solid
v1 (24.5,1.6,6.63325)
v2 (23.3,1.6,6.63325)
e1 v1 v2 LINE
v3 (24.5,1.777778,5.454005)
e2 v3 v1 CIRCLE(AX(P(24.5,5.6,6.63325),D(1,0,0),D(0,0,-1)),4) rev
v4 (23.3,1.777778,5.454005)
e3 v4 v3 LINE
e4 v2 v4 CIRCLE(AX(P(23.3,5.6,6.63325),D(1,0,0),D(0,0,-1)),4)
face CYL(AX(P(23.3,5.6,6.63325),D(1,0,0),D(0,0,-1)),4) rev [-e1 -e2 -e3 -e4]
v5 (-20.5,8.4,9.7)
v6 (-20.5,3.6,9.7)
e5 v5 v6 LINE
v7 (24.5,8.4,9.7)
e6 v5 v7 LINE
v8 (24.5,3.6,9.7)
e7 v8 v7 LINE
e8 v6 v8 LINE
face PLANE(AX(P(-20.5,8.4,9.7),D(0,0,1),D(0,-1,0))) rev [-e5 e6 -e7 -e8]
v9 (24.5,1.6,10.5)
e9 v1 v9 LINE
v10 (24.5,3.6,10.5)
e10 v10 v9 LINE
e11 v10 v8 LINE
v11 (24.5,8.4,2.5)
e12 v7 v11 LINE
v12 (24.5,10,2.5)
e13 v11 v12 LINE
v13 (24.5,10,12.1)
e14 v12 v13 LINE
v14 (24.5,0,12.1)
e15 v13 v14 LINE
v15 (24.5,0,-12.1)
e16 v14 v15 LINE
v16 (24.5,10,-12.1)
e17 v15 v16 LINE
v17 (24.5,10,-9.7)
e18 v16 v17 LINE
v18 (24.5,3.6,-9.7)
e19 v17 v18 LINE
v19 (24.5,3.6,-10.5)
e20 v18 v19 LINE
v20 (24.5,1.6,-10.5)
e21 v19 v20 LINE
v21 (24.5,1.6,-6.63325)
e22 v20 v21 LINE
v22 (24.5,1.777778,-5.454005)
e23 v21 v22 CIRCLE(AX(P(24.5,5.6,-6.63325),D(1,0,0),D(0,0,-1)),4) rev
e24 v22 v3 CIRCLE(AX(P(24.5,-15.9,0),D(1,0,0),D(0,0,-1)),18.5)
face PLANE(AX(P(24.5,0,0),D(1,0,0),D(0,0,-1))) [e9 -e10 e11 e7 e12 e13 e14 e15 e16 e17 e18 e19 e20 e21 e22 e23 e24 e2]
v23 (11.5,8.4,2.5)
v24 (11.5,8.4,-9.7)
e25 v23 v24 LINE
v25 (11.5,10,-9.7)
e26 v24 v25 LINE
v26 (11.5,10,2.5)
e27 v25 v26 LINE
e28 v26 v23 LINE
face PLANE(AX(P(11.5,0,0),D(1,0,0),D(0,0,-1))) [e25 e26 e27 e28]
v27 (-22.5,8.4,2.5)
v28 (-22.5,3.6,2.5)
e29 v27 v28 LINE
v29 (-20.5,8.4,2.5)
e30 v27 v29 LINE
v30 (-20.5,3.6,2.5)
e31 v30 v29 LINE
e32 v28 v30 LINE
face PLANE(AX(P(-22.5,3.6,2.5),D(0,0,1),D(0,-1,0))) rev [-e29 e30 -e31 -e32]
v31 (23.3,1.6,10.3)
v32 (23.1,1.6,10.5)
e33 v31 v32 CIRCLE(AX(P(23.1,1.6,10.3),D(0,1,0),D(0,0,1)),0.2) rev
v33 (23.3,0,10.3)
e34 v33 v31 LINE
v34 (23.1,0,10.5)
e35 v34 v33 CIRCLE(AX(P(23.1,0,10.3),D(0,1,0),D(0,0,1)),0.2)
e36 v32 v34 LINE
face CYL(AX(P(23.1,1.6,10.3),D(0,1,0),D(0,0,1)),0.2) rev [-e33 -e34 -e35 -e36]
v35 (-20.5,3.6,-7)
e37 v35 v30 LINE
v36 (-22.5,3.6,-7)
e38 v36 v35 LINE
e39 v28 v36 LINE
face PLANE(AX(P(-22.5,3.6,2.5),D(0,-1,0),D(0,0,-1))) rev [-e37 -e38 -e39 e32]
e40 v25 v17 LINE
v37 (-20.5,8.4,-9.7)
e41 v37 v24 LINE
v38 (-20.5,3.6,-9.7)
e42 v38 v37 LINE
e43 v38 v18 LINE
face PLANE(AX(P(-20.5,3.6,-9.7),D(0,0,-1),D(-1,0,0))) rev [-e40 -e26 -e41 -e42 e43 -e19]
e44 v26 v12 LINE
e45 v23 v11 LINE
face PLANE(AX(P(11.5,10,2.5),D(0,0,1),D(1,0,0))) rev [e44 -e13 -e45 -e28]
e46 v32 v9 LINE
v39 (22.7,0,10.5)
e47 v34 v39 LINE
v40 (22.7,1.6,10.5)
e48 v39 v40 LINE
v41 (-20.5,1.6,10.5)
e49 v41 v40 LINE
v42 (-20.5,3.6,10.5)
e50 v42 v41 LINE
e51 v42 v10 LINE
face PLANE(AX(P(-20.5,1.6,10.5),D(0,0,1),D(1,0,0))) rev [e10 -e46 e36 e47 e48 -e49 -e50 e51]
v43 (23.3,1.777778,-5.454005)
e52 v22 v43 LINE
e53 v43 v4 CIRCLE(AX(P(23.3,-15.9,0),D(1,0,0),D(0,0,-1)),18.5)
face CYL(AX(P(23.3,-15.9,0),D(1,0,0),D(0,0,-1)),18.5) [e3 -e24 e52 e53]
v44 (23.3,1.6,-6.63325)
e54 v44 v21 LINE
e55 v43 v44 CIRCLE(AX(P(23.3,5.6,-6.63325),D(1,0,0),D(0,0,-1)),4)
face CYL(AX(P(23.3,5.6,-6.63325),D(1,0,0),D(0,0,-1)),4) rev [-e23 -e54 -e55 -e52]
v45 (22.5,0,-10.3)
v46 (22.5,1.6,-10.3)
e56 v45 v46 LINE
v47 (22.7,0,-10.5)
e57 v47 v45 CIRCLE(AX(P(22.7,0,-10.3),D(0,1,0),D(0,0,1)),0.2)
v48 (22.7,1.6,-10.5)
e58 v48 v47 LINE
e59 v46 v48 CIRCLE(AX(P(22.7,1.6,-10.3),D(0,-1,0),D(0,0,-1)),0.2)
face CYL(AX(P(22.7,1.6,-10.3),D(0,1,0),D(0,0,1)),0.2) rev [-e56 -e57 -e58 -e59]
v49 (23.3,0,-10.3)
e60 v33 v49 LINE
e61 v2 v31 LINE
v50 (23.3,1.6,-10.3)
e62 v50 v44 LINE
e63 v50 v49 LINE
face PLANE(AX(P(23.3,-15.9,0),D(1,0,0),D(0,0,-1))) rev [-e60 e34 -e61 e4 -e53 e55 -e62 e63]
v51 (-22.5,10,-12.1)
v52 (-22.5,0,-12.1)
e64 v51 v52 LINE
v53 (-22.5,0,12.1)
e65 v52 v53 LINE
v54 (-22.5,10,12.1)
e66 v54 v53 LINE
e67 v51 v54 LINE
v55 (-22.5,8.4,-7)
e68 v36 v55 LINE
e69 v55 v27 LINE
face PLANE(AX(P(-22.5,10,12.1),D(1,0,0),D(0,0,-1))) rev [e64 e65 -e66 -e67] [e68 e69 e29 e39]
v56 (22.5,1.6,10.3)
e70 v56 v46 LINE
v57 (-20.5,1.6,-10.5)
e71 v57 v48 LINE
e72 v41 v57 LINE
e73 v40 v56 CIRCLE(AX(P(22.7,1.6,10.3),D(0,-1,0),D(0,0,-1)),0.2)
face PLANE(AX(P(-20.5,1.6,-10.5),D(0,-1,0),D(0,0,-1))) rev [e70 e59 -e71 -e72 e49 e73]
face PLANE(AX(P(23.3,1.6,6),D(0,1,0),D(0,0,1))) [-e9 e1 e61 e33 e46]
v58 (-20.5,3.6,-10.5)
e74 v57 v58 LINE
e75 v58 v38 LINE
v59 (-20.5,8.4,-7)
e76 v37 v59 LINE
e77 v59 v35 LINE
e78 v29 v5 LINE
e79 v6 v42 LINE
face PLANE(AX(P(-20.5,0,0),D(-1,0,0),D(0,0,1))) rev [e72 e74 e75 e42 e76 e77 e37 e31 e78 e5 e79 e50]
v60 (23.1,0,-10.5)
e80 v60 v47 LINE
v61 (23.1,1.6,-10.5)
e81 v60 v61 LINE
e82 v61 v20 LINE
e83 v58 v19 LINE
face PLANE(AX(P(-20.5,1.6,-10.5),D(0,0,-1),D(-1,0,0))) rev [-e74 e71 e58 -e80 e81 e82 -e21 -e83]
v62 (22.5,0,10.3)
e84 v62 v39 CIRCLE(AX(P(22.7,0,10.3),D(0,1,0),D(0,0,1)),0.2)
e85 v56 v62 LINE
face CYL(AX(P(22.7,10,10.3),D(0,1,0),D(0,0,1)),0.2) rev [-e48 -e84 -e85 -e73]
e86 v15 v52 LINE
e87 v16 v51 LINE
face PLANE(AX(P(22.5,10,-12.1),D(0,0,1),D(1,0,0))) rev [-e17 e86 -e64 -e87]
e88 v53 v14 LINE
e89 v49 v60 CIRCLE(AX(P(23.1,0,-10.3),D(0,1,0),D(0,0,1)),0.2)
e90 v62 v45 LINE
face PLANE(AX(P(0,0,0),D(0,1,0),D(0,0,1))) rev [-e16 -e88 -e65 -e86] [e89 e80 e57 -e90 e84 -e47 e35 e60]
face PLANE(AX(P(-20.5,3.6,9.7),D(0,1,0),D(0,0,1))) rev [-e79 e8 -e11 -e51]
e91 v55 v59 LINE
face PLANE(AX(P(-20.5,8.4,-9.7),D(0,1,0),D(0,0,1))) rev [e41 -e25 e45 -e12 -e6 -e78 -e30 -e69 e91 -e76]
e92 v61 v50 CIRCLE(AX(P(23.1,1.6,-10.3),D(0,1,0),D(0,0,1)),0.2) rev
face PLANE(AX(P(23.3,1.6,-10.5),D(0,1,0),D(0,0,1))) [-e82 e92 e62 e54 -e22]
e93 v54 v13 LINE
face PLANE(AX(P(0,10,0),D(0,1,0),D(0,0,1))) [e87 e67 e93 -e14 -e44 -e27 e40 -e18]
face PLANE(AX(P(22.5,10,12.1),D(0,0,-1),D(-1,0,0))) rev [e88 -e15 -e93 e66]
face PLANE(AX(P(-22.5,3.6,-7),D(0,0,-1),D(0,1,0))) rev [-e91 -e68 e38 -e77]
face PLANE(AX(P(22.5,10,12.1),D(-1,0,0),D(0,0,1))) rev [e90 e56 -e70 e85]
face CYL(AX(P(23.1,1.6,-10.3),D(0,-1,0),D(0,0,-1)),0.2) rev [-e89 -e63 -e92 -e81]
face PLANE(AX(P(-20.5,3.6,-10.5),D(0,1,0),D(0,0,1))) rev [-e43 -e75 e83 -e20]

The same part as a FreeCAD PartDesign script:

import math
import FreeCAD as App
import Part
import Sketcher
from FreeCAD import Vector


def edges_at(feature, points):
    """Names of the edges that pass closest to the given points."""
    edges = feature.Shape.Edges
    near = lambda p: min(range(len(edges)), key=lambda i: edges[i].distToShape(Part.Vertex(*p))[0])
    return sorted({f"Edge{near(p) + 1}" for p in points})

doc = App.newDocument("Part")
body = doc.addObject("PartDesign::Body", "Body")

# Sketch on XZ plane
sketch1 = body.newObject("Sketcher::SketchObject", "Sketch")
sketch1.AttachmentSupport = (doc.getObject("XZ_Plane"), [""])
sketch1.MapMode = "FlatFace"
sketch1.addGeometry(Part.LineSegment(Vector(-22, -12, 0), Vector(-22, 12, 0)), False)
sketch1.addGeometry(Part.LineSegment(Vector(-22, 12, 0), Vector(22, 12, 0)), False)
sketch1.addGeometry(Part.LineSegment(Vector(22, 12, 0), Vector(22, -12, 0)), False)
sketch1.addGeometry(Part.LineSegment(Vector(22, -12, 0), Vector(-22, -12, 0)), False)
sketch1.addConstraint(Sketcher.Constraint("Coincident", 0, 2, 1, 1))
sketch1.addConstraint(Sketcher.Constraint("Coincident", 1, 2, 2, 1))
sketch1.addConstraint(Sketcher.Constraint("Coincident", 2, 2, 3, 1))
sketch1.addConstraint(Sketcher.Constraint("Coincident", 3, 2, 0, 1))
sketch1.addConstraint(Sketcher.Constraint("Vertical", 0))
sketch1.addConstraint(Sketcher.Constraint("Horizontal", 1))
sketch1.addConstraint(Sketcher.Constraint("Vertical", 2))
sketch1.addConstraint(Sketcher.Constraint("Horizontal", 3))
sketch1.addConstraint(Sketcher.Constraint("Symmetric", 0, 2, 2, 2, -1, 1))
sketch1.addConstraint(Sketcher.Constraint("DistanceX", 1, 1, 1, 2, 45.0))
sketch1.addConstraint(Sketcher.Constraint("DistanceY", 0, 1, 0, 2, 24.2))
pad1 = body.newObject("PartDesign::Pad", "Pad")
pad1.Profile = sketch1
pad1.Length = 10
pad1.Reversed = True

# Sketch on YZ plane
sketch2 = body.newObject("Sketcher::SketchObject", "Sketch001")
sketch2.AttachmentSupport = (doc.getObject("YZ_Plane"), [""])
sketch2.MapMode = "FlatFace"
sketch2.AttachmentOffset = App.Placement(Vector(0, 0, 22.5), App.Rotation())
sketch2.addGeometry(Part.LineSegment(Vector(1.6, 10.5, 0), Vector(1.6, -10.5, 0)), False)
sketch2.addGeometry(Part.LineSegment(Vector(1.6, -10.5, 0), Vector(3.6, -10.5, 0)), False)
sketch2.addGeometry(Part.LineSegment(Vector(3.6, -10.5, 0), Vector(3.6, -9.7, 0)), False)
sketch2.addGeometry(Part.LineSegment(Vector(3.6, -9.7, 0), Vector(8.4, -9.7, 0)), False)
sketch2.addGeometry(Part.LineSegment(Vector(8.4, -9.7, 0), Vector(8.4, 9.7, 0)), False)
sketch2.addGeometry(Part.LineSegment(Vector(8.4, 9.7, 0), Vector(3.6, 9.7, 0)), False)
sketch2.addGeometry(Part.LineSegment(Vector(3.6, 9.7, 0), Vector(3.6, 10.5, 0)), False)
sketch2.addGeometry(Part.LineSegment(Vector(3.6, 10.5, 0), Vector(1.6, 10.5, 0)), False)
sketch2.addConstraint(Sketcher.Constraint("Coincident", 0, 2, 1, 1))
sketch2.addConstraint(Sketcher.Constraint("Coincident", 1, 2, 2, 1))
sketch2.addConstraint(Sketcher.Constraint("Coincident", 2, 2, 3, 1))
sketch2.addConstraint(Sketcher.Constraint("Coincident", 3, 2, 4, 1))
sketch2.addConstraint(Sketcher.Constraint("Coincident", 4, 2, 5, 1))
sketch2.addConstraint(Sketcher.Constraint("Coincident", 5, 2, 6, 1))
sketch2.addConstraint(Sketcher.Constraint("Coincident", 6, 2, 7, 1))
sketch2.addConstraint(Sketcher.Constraint("Coincident", 7, 2, 0, 1))
sketch2.addConstraint(Sketcher.Constraint("Vertical", 0))
sketch2.addConstraint(Sketcher.Constraint("Horizontal", 1))
sketch2.addConstraint(Sketcher.Constraint("Vertical", 2))
sketch2.addConstraint(Sketcher.Constraint("Horizontal", 3))
sketch2.addConstraint(Sketcher.Constraint("Vertical", 4))
sketch2.addConstraint(Sketcher.Constraint("Horizontal", 5))
sketch2.addConstraint(Sketcher.Constraint("Vertical", 6))
sketch2.addConstraint(Sketcher.Constraint("Horizontal", 7))
sketch2.addConstraint(Sketcher.Constraint("Symmetric", 2, 2, 5, 2, -1))
sketch2.addConstraint(Sketcher.Constraint("Equal", 2, 6))
sketch2.addConstraint(Sketcher.Constraint("DistanceX", 1, 1, 1, 2, 2.0))
sketch2.addConstraint(Sketcher.Constraint("DistanceY", 0, 2, 0, 1, 21.0))
sketch2.addConstraint(Sketcher.Constraint("DistanceX", 3, 1, 3, 2, 4.8))
sketch2.addConstraint(Sketcher.Constraint("DistanceY", 2, 1, 2, 2, 0.8))
sketch2.addConstraint(Sketcher.Constraint("DistanceX", -1, 1, 0, 2, 1.6))
pocket1 = body.newObject("PartDesign::Pocket", "Pocket")
pocket1.Profile = sketch2
pocket1.Length = 43

# Sketch on YZ plane
sketch3 = body.newObject("Sketcher::SketchObject", "Sketch002")
sketch3.AttachmentSupport = (doc.getObject("YZ_Plane"), [""])
sketch3.MapMode = "FlatFace"
sketch3.AttachmentOffset = App.Placement(Vector(0, 0, 22.5), App.Rotation())
sketch3.addGeometry(Part.LineSegment(Vector(8.4, 2.5, 0), Vector(3.6, 2.5, 0)), False)
sketch3.addGeometry(Part.LineSegment(Vector(3.6, 2.5, 0), Vector(3.6, -7, 0)), False)
sketch3.addGeometry(Part.LineSegment(Vector(3.6, -7, 0), Vector(8.4, -7, 0)), False)
sketch3.addGeometry(Part.LineSegment(Vector(8.4, -7, 0), Vector(8.4, 2.5, 0)), False)
sketch3.addConstraint(Sketcher.Constraint("Coincident", 0, 2, 1, 1))
sketch3.addConstraint(Sketcher.Constraint("Coincident", 1, 2, 2, 1))
sketch3.addConstraint(Sketcher.Constraint("Coincident", 2, 2, 3, 1))
sketch3.addConstraint(Sketcher.Constraint("Coincident", 3, 2, 0, 1))
sketch3.addConstraint(Sketcher.Constraint("Horizontal", 0))
sketch3.addConstraint(Sketcher.Constraint("Vertical", 1))
sketch3.addConstraint(Sketcher.Constraint("Horizontal", 2))
sketch3.addConstraint(Sketcher.Constraint("Vertical", 3))
sketch3.addConstraint(Sketcher.Constraint("DistanceX", 0, 2, 0, 1, 4.8))
sketch3.addConstraint(Sketcher.Constraint("DistanceY", 1, 2, 1, 1, 9.5))
sketch3.addConstraint(Sketcher.Constraint("DistanceY", 1, 2, -1, 1, 7.0))
sketch3.addConstraint(Sketcher.Constraint("DistanceX", -1, 1, 0, 2, 3.6))
pocket2 = body.newObject("PartDesign::Pocket", "Pocket001")
pocket2.Profile = sketch3
pocket2.Type = "ThroughAll"

# Sketch on YZ plane
sketch4 = body.newObject("Sketcher::SketchObject", "Sketch003")
sketch4.AttachmentSupport = (doc.getObject("YZ_Plane"), [""])
sketch4.MapMode = "FlatFace"
sketch4.AttachmentOffset = App.Placement(Vector(0, 0, 22.5), App.Rotation())
sketch4.addGeometry(Part.LineSegment(Vector(10, 2.5, 0), Vector(8.4, 2.5, 0)), False)
sketch4.addGeometry(Part.LineSegment(Vector(8.4, 2.5, 0), Vector(8.4, -9.7, 0)), False)
sketch4.addGeometry(Part.LineSegment(Vector(8.4, -9.7, 0), Vector(10, -9.7, 0)), False)
sketch4.addGeometry(Part.LineSegment(Vector(10, -9.7, 0), Vector(10, 2.5, 0)), False)
sketch4.addConstraint(Sketcher.Constraint("Coincident", 0, 2, 1, 1))
sketch4.addConstraint(Sketcher.Constraint("Coincident", 1, 2, 2, 1))
sketch4.addConstraint(Sketcher.Constraint("Coincident", 2, 2, 3, 1))
sketch4.addConstraint(Sketcher.Constraint("Coincident", 3, 2, 0, 1))
sketch4.addConstraint(Sketcher.Constraint("Horizontal", 0))
sketch4.addConstraint(Sketcher.Constraint("Vertical", 1))
sketch4.addConstraint(Sketcher.Constraint("Horizontal", 2))
sketch4.addConstraint(Sketcher.Constraint("Vertical", 3))
sketch4.addConstraint(Sketcher.Constraint("DistanceX", 0, 2, 0, 1, 1.6))
sketch4.addConstraint(Sketcher.Constraint("DistanceY", 1, 2, 1, 1, 12.2))
sketch4.addConstraint(Sketcher.Constraint("DistanceX", -1, 1, 2, 2, 10.0))
sketch4.addConstraint(Sketcher.Constraint("DistanceY", -1, 1, 0, 2, 2.5))
pocket3 = body.newObject("PartDesign::Pocket", "Pocket002")
pocket3.Profile = sketch4
pocket3.Length = 11

# Sketch on YZ plane
sketch5 = body.newObject("Sketcher::SketchObject", "Sketch004")
sketch5.AttachmentSupport = (doc.getObject("YZ_Plane"), [""])
sketch5.MapMode = "FlatFace"
sketch5.AttachmentOffset = App.Placement(Vector(0, 0, 22.5), App.Rotation())
sketch5.addGeometry(Part.LineSegment(Vector(10, 2.5, 0), Vector(10, 12.1, 0)), False)
sketch5.addGeometry(Part.LineSegment(Vector(10, 12.1, 0), Vector(0, 12.1, 0)), False)
sketch5.addGeometry(Part.LineSegment(Vector(0, 12.1, 0), Vector(0, 10.5, 0)), False)
sketch5.addGeometry(Part.LineSegment(Vector(0, 10.5, 0), Vector(3.6, 10.5, 0)), False)
sketch5.addGeometry(Part.LineSegment(Vector(3.6, 10.5, 0), Vector(3.6, 9.7, 0)), False)
sketch5.addGeometry(Part.LineSegment(Vector(3.6, 9.7, 0), Vector(8.4, 9.7, 0)), False)
sketch5.addGeometry(Part.LineSegment(Vector(8.4, 9.7, 0), Vector(8.4, 2.5, 0)), False)
sketch5.addGeometry(Part.LineSegment(Vector(8.4, 2.5, 0), Vector(10, 2.5, 0)), False)
sketch5.addGeometry(Part.LineSegment(Vector(10, -12.1, 0), Vector(10, -9.7, 0)), False)
sketch5.addGeometry(Part.LineSegment(Vector(10, -9.7, 0), Vector(3.6, -9.7, 0)), False)
sketch5.addGeometry(Part.LineSegment(Vector(3.6, -9.7, 0), Vector(3.6, -10.5, 0)), False)
sketch5.addGeometry(Part.LineSegment(Vector(3.6, -10.5, 0), Vector(0, -10.5, 0)), False)
sketch5.addGeometry(Part.LineSegment(Vector(0, -10.5, 0), Vector(0, -12.1, 0)), False)
sketch5.addGeometry(Part.LineSegment(Vector(0, -12.1, 0), Vector(10, -12.1, 0)), False)
sketch5.addConstraint(Sketcher.Constraint("Coincident", 0, 2, 1, 1))
sketch5.addConstraint(Sketcher.Constraint("Coincident", 1, 2, 2, 1))
sketch5.addConstraint(Sketcher.Constraint("Coincident", 2, 2, 3, 1))
sketch5.addConstraint(Sketcher.Constraint("Coincident", 3, 2, 4, 1))
sketch5.addConstraint(Sketcher.Constraint("Coincident", 4, 2, 5, 1))
sketch5.addConstraint(Sketcher.Constraint("Coincident", 5, 2, 6, 1))
sketch5.addConstraint(Sketcher.Constraint("Coincident", 6, 2, 7, 1))
sketch5.addConstraint(Sketcher.Constraint("Coincident", 7, 2, 0, 1))
sketch5.addConstraint(Sketcher.Constraint("Coincident", 8, 2, 9, 1))
sketch5.addConstraint(Sketcher.Constraint("Coincident", 9, 2, 10, 1))
sketch5.addConstraint(Sketcher.Constraint("Coincident", 10, 2, 11, 1))
sketch5.addConstraint(Sketcher.Constraint("Coincident", 11, 2, 12, 1))
sketch5.addConstraint(Sketcher.Constraint("Coincident", 12, 2, 13, 1))
sketch5.addConstraint(Sketcher.Constraint("Coincident", 13, 2, 8, 1))
sketch5.addConstraint(Sketcher.Constraint("Vertical", 0))
sketch5.addConstraint(Sketcher.Constraint("Horizontal", 1))
sketch5.addConstraint(Sketcher.Constraint("Vertical", 2))
sketch5.addConstraint(Sketcher.Constraint("Horizontal", 3))
sketch5.addConstraint(Sketcher.Constraint("Vertical", 4))
sketch5.addConstraint(Sketcher.Constraint("Horizontal", 5))
sketch5.addConstraint(Sketcher.Constraint("Vertical", 6))
sketch5.addConstraint(Sketcher.Constraint("Horizontal", 7))
sketch5.addConstraint(Sketcher.Constraint("Vertical", 8))
sketch5.addConstraint(Sketcher.Constraint("Horizontal", 9))
sketch5.addConstraint(Sketcher.Constraint("Vertical", 10))
sketch5.addConstraint(Sketcher.Constraint("Horizontal", 11))
sketch5.addConstraint(Sketcher.Constraint("Vertical", 12))
sketch5.addConstraint(Sketcher.Constraint("Horizontal", 13))
sketch5.addConstraint(Sketcher.Constraint("Symmetric", 2, 2, 11, 2, -1, 1))
sketch5.addConstraint(Sketcher.Constraint("Symmetric", 4, 2, 9, 2, -1))
sketch5.addConstraint(Sketcher.Constraint("Symmetric", 1, 2, 12, 2, -1))
sketch5.addConstraint(Sketcher.Constraint("Vertical", 7, 2, 8, 2))
sketch5.addConstraint(Sketcher.Constraint("Equal", 7, 2))
sketch5.addConstraint(Sketcher.Constraint("DistanceX", 1, 2, 1, 1, 10.0))
sketch5.addConstraint(Sketcher.Constraint("DistanceX", 3, 1, 3, 2, 3.6))
sketch5.addConstraint(Sketcher.Constraint("DistanceX", 5, 1, 5, 2, 4.8))
sketch5.addConstraint(Sketcher.Constraint("DistanceY", 0, 1, 0, 2, 9.6))
sketch5.addConstraint(Sketcher.Constraint("DistanceY", 4, 2, 4, 1, 0.8))
sketch5.addConstraint(Sketcher.Constraint("DistanceY", 10, 2, 6, 2, 13.0))
pad2 = body.newObject("PartDesign::Pad", "Pad001")
pad2.Profile = sketch5
pad2.Length = 2

# Sketch on YZ plane
sketch6 = body.newObject("Sketcher::SketchObject", "Sketch005")
sketch6.AttachmentSupport = (doc.getObject("YZ_Plane"), [""])
sketch6.MapMode = "FlatFace"
sketch6.AttachmentOffset = App.Placement(Vector(0, 0, 24.5), App.Rotation())
sketch6.addGeometry(Part.LineSegment(Vector(0, 10.5, 0), Vector(0, -10.5, 0)), False)
sketch6.addGeometry(Part.LineSegment(Vector(0, -10.5, 0), Vector(1.6, -10.5, 0)), False)
sketch6.addGeometry(Part.LineSegment(Vector(1.6, -10.5, 0), Vector(1.6, -6, 0)), False)
sketch6.addGeometry(Part.ArcOfCircle(Part.Circle(Vector(-15.9, 0, 0), Vector(0, 0, 1), 18.5), math.radians(-19), math.radians(19)), False)
sketch6.addGeometry(Part.LineSegment(Vector(1.6, 6, 0), Vector(1.6, 10.5, 0)), False)
sketch6.addGeometry(Part.LineSegment(Vector(1.6, 10.5, 0), Vector(0, 10.5, 0)), False)
sketch6.addConstraint(Sketcher.Constraint("Coincident", 0, 2, 1, 1))
sketch6.addConstraint(Sketcher.Constraint("Coincident", 1, 2, 2, 1))
sketch6.addConstraint(Sketcher.Constraint("Coincident", 2, 2, 3, 1))
sketch6.addConstraint(Sketcher.Constraint("Coincident", 3, 2, 4, 1))
sketch6.addConstraint(Sketcher.Constraint("Coincident", 4, 2, 5, 1))
sketch6.addConstraint(Sketcher.Constraint("Coincident", 5, 2, 0, 1))
sketch6.addConstraint(Sketcher.Constraint("Vertical", 0))
sketch6.addConstraint(Sketcher.Constraint("Horizontal", 1))
sketch6.addConstraint(Sketcher.Constraint("Vertical", 2))
sketch6.addConstraint(Sketcher.Constraint("Vertical", 4))
sketch6.addConstraint(Sketcher.Constraint("Horizontal", 5))
sketch6.addConstraint(Sketcher.Constraint("Symmetric", 0, 2, 5, 2, -1, 1))
sketch6.addConstraint(Sketcher.Constraint("Symmetric", 2, 2, 3, 2, -1))
sketch6.addConstraint(Sketcher.Constraint("Radius", 3, 18.5))
sketch6.addConstraint(Sketcher.Constraint("DistanceY", 0, 2, 0, 1, 21.0))
sketch6.addConstraint(Sketcher.Constraint("DistanceX", 1, 1, 1, 2, 1.6))
sketch6.addConstraint(Sketcher.Constraint("DistanceY", 2, 1, 2, 2, 4.5))
pad3 = body.newObject("PartDesign::Pad", "Pad002")
pad3.Profile = sketch6
pad3.Length = 1.2
pad3.Reversed = True
doc.recompute()

fillet = body.newObject("PartDesign::Fillet", "Fillet")
fillet.Base = (pad3, edges_at(pad3, [(23.9, 1.6, 6), (23.9, 1.6, -6)]))
fillet.Radius = 4
doc.recompute()

fillet2 = body.newObject("PartDesign::Fillet", "Fillet001")
fillet2.Base = (fillet, edges_at(fillet, [
    (22.5, 0.8, -10.5),
    (23.3, 0.8, 10.5),
    (23.3, 0.8, -10.5),
    (22.5, 0.8, 10.5),
]))
fillet2.Radius = 0.2

doc.recompute()
